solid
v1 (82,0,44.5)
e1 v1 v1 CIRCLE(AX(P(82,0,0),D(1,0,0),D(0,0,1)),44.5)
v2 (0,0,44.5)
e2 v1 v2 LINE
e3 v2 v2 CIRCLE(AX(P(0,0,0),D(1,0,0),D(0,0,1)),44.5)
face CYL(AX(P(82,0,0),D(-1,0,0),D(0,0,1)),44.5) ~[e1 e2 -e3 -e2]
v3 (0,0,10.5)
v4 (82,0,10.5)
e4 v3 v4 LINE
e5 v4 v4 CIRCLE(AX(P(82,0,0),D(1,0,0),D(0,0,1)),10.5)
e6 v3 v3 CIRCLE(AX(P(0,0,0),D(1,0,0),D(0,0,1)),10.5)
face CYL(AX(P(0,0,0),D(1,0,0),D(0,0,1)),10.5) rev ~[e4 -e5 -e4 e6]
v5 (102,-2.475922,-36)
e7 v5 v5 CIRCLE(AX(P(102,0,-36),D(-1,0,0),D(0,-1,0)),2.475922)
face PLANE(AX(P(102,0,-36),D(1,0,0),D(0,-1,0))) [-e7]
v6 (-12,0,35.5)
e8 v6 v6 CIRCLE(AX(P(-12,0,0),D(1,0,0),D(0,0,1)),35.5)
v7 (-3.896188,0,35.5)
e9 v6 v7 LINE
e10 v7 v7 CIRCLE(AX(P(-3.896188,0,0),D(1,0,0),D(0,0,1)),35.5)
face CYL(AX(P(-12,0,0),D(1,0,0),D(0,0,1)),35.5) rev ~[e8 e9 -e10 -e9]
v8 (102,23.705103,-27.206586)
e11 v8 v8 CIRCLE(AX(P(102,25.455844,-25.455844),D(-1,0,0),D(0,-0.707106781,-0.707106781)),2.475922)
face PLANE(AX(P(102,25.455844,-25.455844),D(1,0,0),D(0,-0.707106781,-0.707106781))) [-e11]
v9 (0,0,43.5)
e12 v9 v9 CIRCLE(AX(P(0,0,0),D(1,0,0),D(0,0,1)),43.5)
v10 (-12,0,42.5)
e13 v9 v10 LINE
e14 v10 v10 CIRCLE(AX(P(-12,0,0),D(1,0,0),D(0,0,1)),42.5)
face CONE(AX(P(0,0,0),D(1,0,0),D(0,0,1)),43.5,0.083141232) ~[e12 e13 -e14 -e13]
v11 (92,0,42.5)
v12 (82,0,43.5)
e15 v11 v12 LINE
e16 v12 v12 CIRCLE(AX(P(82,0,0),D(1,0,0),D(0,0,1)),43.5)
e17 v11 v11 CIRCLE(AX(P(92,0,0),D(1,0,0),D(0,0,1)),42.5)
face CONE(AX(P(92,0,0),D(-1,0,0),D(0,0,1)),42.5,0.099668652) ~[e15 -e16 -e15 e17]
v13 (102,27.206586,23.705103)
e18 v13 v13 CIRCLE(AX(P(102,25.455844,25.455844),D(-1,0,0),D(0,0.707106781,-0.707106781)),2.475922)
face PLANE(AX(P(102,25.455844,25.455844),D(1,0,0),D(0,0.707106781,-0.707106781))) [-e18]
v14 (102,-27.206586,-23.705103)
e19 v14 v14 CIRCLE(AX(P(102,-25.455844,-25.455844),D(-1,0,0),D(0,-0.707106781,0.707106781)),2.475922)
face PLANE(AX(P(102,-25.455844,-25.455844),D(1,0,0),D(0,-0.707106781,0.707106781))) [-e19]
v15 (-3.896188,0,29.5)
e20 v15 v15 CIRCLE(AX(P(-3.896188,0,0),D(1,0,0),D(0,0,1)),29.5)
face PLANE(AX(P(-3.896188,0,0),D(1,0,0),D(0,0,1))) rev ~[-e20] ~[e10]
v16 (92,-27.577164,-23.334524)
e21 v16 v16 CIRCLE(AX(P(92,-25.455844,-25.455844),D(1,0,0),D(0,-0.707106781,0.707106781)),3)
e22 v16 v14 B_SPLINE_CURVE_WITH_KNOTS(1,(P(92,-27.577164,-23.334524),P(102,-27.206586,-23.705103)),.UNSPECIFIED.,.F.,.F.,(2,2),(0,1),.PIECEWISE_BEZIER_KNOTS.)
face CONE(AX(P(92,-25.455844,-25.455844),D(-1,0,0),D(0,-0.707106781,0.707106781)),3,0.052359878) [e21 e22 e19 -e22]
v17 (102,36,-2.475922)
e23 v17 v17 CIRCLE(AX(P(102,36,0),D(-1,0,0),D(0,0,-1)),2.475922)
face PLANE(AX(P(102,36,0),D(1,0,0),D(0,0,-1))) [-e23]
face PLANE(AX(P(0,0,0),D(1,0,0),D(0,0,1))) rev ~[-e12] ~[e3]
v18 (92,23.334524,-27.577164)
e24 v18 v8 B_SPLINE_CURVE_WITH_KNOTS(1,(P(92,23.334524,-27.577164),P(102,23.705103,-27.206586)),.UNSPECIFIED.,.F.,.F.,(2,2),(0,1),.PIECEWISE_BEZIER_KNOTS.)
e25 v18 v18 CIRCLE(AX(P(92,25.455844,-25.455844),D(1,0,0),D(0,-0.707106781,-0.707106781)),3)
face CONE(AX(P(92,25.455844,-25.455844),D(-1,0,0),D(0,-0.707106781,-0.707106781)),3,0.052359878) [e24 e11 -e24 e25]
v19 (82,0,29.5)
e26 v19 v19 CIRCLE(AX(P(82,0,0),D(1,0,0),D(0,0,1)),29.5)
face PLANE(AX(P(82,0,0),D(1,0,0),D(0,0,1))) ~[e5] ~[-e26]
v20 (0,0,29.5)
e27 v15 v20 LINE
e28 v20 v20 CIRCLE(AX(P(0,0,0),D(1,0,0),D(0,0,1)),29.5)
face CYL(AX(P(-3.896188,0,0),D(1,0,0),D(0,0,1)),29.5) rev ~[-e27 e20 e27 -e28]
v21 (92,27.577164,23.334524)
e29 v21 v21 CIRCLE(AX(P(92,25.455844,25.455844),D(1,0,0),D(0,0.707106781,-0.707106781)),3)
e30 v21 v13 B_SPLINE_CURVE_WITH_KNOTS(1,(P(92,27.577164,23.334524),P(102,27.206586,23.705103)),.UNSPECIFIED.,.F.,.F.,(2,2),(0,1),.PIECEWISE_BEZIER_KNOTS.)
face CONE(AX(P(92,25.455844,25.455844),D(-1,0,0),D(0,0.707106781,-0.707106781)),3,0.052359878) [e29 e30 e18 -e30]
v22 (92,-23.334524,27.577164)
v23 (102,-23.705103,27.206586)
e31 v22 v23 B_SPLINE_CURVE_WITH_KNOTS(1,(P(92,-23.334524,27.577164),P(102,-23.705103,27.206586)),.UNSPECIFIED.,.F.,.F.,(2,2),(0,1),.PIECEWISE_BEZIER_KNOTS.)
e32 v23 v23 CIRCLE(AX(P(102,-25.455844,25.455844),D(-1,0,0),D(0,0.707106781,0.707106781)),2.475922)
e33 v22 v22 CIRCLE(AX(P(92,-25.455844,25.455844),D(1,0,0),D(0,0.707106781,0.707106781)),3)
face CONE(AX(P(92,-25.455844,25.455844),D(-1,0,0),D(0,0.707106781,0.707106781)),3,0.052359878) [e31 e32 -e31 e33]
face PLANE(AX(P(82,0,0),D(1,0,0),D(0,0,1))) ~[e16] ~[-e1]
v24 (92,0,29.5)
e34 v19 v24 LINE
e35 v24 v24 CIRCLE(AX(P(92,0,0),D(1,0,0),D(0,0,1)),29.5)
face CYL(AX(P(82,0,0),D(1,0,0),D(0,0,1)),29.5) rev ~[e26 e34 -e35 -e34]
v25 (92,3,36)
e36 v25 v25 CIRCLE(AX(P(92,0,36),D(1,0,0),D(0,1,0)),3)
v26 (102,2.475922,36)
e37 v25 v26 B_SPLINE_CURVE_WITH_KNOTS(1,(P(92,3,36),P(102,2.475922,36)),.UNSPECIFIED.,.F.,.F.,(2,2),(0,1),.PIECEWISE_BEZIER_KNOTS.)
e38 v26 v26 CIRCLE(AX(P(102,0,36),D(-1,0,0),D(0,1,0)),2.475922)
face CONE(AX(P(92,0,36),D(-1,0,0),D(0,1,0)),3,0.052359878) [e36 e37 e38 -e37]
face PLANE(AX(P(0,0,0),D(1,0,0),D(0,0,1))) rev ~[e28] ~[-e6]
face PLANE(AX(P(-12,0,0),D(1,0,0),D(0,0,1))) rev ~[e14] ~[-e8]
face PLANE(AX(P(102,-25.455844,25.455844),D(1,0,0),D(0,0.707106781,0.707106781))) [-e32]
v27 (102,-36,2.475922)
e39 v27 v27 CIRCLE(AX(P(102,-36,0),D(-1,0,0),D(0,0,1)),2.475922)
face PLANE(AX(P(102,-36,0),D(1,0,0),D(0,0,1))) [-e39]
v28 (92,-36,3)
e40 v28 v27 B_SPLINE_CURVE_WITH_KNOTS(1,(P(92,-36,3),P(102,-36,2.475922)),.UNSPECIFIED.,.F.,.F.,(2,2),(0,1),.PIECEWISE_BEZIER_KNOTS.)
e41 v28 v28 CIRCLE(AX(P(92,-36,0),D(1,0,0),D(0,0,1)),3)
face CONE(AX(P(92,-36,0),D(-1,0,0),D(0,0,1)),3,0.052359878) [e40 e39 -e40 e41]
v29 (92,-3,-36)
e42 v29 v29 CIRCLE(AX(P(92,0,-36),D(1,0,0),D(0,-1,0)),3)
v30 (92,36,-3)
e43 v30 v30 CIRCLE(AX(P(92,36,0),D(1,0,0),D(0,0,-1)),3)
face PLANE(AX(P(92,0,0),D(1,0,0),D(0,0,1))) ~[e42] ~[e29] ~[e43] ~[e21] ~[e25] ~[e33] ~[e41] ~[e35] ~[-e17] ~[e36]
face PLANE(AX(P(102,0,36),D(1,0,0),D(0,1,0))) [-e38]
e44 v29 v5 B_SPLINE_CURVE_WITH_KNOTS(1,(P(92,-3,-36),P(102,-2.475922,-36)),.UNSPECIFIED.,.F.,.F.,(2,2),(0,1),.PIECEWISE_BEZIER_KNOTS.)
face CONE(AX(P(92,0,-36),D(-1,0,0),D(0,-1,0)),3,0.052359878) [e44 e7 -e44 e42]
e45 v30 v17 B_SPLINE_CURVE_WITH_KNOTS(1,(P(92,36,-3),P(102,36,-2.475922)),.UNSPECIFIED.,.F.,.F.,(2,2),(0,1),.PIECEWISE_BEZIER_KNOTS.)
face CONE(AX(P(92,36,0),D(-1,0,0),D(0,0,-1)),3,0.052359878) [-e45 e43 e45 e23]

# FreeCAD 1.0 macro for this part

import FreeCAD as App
import Part
import Sketcher

V = App.Vector


def add_polygon(sketch, points):
    """Adds a closed chain of lines whose ends are joined by coincident constraints."""
    first, n = sketch.GeometryCount, len(points)
    for a, b in zip(points, points[1:] + points[:1]):
        sketch.addGeometry(Part.LineSegment(App.Vector(*a, 0), App.Vector(*b, 0)), False)
    for i in range(n):
        sketch.addConstraint(Sketcher.Constraint("Coincident", first + i, 2, first + (i + 1) % n, 1))

doc = App.newDocument("Part")
params = doc.addObject("Spreadsheet::Sheet", "Params")
for row, (alias, value) in enumerate([
    ("sketch1_width", "82 mm"),
    ("sketch1_width2", "10 mm"),
    ("sketch1_height", "19 mm"),
    ("sketch1_height2", "13 mm"),
    ("sketch1_height3", "1 mm"),
    ("revolution_angle", "360 deg"),
    ("sketch2_diameter", "6 mm"),
    ("pad1_length", "10 mm"),
    ("pad1_taper", "-3 deg"),
], start=1):
    params.set(f"A{row}", alias)
    params.set(f"B{row}", "=" + value)
    params.setAlias(f"B{row}", alias)

body = doc.addObject("PartDesign::Body", "Body")

sketch1 = body.newObject("Sketcher::SketchObject", "Sketch")
sketch1.AttachmentSupport = (doc.getObject("XY_Plane"), [""])
sketch1.MapMode = "FlatFace"
add_polygon(sketch1, [(0, 10.5), (82, 10.5), (82, 29.5), (92, 29.5), (92, 42.5), (82, 43.5), (82, 44.5), (0, 44.5), (0, 43.5), (-12, 42.5), (-12, 35.5), (-3.9, 35.5), (-3.9, 29.5), (0, 29.5)])
sketch1.addConstraint(Sketcher.Constraint("Horizontal", 0))
sketch1.addConstraint(Sketcher.Constraint("Vertical", 1))
sketch1.addConstraint(Sketcher.Constraint("Horizontal", 2))
sketch1.addConstraint(Sketcher.Constraint("Vertical", 3))
sketch1.addConstraint(Sketcher.Constraint("Vertical", 5))
sketch1.addConstraint(Sketcher.Constraint("Horizontal", 6))
sketch1.addConstraint(Sketcher.Constraint("Vertical", 7))
sketch1.addConstraint(Sketcher.Constraint("Vertical", 9))
sketch1.addConstraint(Sketcher.Constraint("Horizontal", 10))
sketch1.addConstraint(Sketcher.Constraint("Vertical", 11))
sketch1.addConstraint(Sketcher.Constraint("Horizontal", 12))
sketch1.addConstraint(Sketcher.Constraint("Vertical", 13))
sketch1.addConstraint(Sketcher.Constraint("PointOnObject", 6, 2, -2))
sketch1.addConstraint(Sketcher.Constraint("PointOnObject", 12, 2, -2))
sketch1.addConstraint(Sketcher.Constraint("Horizontal", 4, 2, 7, 2))
sketch1.addConstraint(Sketcher.Constraint("Horizontal", 3, 2, 8, 2))
sketch1.addConstraint(Sketcher.Constraint("Horizontal", 2, 2, 11, 2))
sketch1.addConstraint(Sketcher.Constraint("Vertical", 1, 2, 4, 2))
sketch1.addConstraint(Sketcher.Constraint("DistanceX", 0, 1, 0, 2, 82.0))
sketch1.addConstraint(Sketcher.Constraint("DistanceX", 2, 1, 2, 2, 10.0))
sketch1.addConstraint(Sketcher.Constraint("DistanceY", 1, 1, 1, 2, 19.0))
sketch1.addConstraint(Sketcher.Constraint("DistanceY", 3, 1, 3, 2, 13.0))
sketch1.addConstraint(Sketcher.Constraint("DistanceY", 5, 1, 5, 2, 1.0))
sketch1.addConstraint(Sketcher.Constraint("DistanceY", 9, 2, 9, 1, 7.0))
sketch1.addConstraint(Sketcher.Constraint("DistanceX", 8, 2, -1, 1, 12.0))
sketch1.addConstraint(Sketcher.Constraint("DistanceY", 3, 2, 4, 2, 1.0))
sketch1.addConstraint(Sketcher.Constraint("DistanceY", -1, 1, 0, 2, 10.5))
sketch1.addConstraint(Sketcher.Constraint("DistanceX", 10, 1, 10, 2, 8.103812))
sketch1.setExpression("Constraints[32]", "Params.sketch1_width")
sketch1.setExpression("Constraints[33]", "Params.sketch1_width2")
sketch1.setExpression("Constraints[34]", "Params.sketch1_height")
sketch1.setExpression("Constraints[35]", "Params.sketch1_height2")
sketch1.setExpression("Constraints[36]", "Params.sketch1_height3")
revolution = body.newObject("PartDesign::Revolution", "Revolution")
revolution.Profile = sketch1
revolution.ReferenceAxis = (sketch1, ["H_Axis"])
revolution.setExpression("Angle", "Params.revolution_angle")

sketch2 = body.newObject("Sketcher::SketchObject", "Sketch001")
sketch2.AttachmentSupport = (doc.getObject("YZ_Plane"), [""])
sketch2.MapMode = "FlatFace"
sketch2.AttachmentOffset = App.Placement(V(0, 0, 92), App.Rotation())
sketch2.addGeometry(Part.Circle(V(36, 0, 0), V(0, 0, 1), 3), False)
sketch2.addConstraint(Sketcher.Constraint("PointOnObject", 0, 3, -1))
sketch2.addConstraint(Sketcher.Constraint("Diameter", 0, 6.0))
sketch2.addConstraint(Sketcher.Constraint("DistanceX", -1, 1, 0, 3, 36.0))
sketch2.setExpression("Constraints[1]", "Params.sketch2_diameter")
pad1 = body.newObject("PartDesign::Pad", "Pad")
pad1.Profile = sketch2
pad1.setExpression("Length", "Params.pad1_length")
pad1.setExpression("TaperAngle", "Params.pad1_taper")
doc.recompute()

polarpattern = body.newObject("PartDesign::PolarPattern", "PolarPattern")
polarpattern.Originals = [pad1]
polarpattern.Axis = (doc.getObject("X_Axis"), [""])
polarpattern.Angle = 360
polarpattern.Occurrences = 8
body.Tip = polarpattern

doc.recompute()
